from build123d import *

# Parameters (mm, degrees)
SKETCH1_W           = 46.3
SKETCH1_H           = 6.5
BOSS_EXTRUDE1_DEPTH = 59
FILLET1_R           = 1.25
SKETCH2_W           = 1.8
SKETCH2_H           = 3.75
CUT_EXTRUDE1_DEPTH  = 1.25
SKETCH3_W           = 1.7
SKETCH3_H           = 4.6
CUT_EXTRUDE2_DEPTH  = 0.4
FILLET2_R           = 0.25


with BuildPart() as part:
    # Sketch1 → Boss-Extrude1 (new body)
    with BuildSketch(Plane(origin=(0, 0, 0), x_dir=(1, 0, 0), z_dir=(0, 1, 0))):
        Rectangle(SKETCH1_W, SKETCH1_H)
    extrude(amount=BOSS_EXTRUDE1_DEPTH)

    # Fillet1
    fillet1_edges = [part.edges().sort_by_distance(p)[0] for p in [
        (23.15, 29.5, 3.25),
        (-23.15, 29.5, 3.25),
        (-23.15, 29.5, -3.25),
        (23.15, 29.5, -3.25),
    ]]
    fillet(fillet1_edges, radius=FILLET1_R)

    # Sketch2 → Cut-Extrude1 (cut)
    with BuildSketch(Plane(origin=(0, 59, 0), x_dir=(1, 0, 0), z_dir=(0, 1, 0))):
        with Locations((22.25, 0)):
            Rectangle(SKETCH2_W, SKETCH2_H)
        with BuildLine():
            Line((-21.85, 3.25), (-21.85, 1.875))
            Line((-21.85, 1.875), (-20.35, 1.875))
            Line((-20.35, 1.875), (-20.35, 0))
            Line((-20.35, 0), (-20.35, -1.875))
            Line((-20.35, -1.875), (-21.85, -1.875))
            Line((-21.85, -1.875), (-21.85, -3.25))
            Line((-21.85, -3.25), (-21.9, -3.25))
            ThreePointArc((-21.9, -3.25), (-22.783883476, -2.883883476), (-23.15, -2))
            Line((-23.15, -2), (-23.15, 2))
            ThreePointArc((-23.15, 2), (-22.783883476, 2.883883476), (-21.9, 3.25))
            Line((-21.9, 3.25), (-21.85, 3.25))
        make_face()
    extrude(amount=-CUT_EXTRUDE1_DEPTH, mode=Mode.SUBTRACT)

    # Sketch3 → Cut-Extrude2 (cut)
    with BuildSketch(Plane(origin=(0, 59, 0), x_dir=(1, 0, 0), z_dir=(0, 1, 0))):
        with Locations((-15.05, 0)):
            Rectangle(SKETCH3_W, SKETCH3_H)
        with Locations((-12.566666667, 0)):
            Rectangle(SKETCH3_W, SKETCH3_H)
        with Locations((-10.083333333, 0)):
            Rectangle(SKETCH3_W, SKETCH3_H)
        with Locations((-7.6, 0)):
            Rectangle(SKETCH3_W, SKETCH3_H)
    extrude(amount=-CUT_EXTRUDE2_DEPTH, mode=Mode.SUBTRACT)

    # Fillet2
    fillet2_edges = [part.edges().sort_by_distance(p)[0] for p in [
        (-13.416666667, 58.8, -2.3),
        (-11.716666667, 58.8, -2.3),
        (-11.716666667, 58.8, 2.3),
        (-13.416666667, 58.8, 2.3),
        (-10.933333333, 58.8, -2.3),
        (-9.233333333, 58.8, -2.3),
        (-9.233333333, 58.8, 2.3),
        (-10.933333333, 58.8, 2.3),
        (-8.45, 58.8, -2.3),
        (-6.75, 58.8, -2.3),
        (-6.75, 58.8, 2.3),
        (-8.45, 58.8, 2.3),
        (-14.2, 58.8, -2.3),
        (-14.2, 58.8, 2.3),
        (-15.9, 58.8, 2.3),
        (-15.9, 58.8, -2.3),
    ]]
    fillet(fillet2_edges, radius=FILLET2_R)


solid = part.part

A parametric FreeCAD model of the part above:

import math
import FreeCAD as App
import Part
import Sketcher
Q = App.Units.Quantity


def edges_at(feature, points):
    """Names of the edges that pass closest to the given points."""
    edges = feature.Shape.Edges
    near = lambda p: min(range(len(edges)), key=lambda i: edges[i].distToShape(Part.Vertex(*p))[0])
    return sorted({f"Edge{near(p) + 1}" for p in points})

doc = App.newDocument("Part")
params = doc.addObject("Spreadsheet::Sheet", "Params")
for row, (alias, value) in enumerate([
    ("sketch1_width", "46.3 mm"),
    ("sketch1_height", "6.5 mm"),
    ("pad1_length", "59 mm"),
    ("fillet_radius", "1.25 mm"),
    ("sketch2_height", "4 mm"),
    ("sketch2_radius", "1.25 mm"),
    ("sketch2_width", "1.8 mm"),
    ("sketch2_width2", "1.5 mm"),
    ("sketch2_width3", "0.05 mm"),
    ("pocket1_length", "1.25 mm"),
    ("sketch3_width", "1.7 mm"),
    ("sketch3_height", "4.6 mm"),
    ("pocket2_length", "0.4 mm"),
    ("fillet2_radius", "0.25 mm"),
], start=1):
    params.set(f"A{row}", alias)
    params.set(f"B{row}", "=" + value)
    params.setAlias(f"B{row}", alias)

body = doc.addObject("PartDesign::Body", "Body")

sketch1 = body.newObject("Sketcher::SketchObject", "Sketch")
sketch1.AttachmentSupport = (doc.getObject("XZ_Plane"), [""])
sketch1.MapMode = "FlatFace"
sketch1.addGeometry(Part.LineSegment(App.Vector(-23, -3, 0), App.Vector(-23, 3, 0)), False)
sketch1.addGeometry(Part.LineSegment(App.Vector(-23, 3, 0), App.Vector(23, 3, 0)), False)
sketch1.addGeometry(Part.LineSegment(App.Vector(23, 3, 0), App.Vector(23, -3, 0)), False)
sketch1.addGeometry(Part.LineSegment(App.Vector(23, -3, 0), App.Vector(-23, -3, 0)), False)
sketch1.addConstraint(Sketcher.Constraint("Coincident", 0, 2, 1, 1))
sketch1.addConstraint(Sketcher.Constraint("Coincident", 1, 2, 2, 1))
sketch1.addConstraint(Sketcher.Constraint("Coincident", 2, 2, 3, 1))
sketch1.addConstraint(Sketcher.Constraint("Coincident", 3, 2, 0, 1))
sketch1.addConstraint(Sketcher.Constraint("Vertical", 0))
sketch1.addConstraint(Sketcher.Constraint("Horizontal", 1))
sketch1.addConstraint(Sketcher.Constraint("Vertical", 2))
sketch1.addConstraint(Sketcher.Constraint("Horizontal", 3))
sketch1.addConstraint(Sketcher.Constraint("Symmetric", 0, 2, 2, 2, -1, 1))
sketch1.addConstraint(Sketcher.Constraint("DistanceX", 1, 1, 1, 2, Q("46.3 mm")))
sketch1.addConstraint(Sketcher.Constraint("DistanceY", 0, 1, 0, 2, Q("6.5 mm")))
sketch1.setExpression("Constraints[9]", "Params.sketch1_width")
sketch1.setExpression("Constraints[10]", "Params.sketch1_height")
pad1 = body.newObject("PartDesign::Pad", "Pad")
pad1.Profile = sketch1
pad1.setExpression("Length", "Params.pad1_length")
pad1.Reversed = True
doc.recompute()

fillet = body.newObject("PartDesign::Fillet", "Fillet")
fillet.Base = (pad1, edges_at(pad1, [
    (23.15, 29.5, 3.25),
    (-23.15, 29.5, 3.25),
    (-23.15, 29.5, -3.25),
    (23.15, 29.5, -3.25),
]))
fillet.setExpression("Radius", "Params.fillet_radius")

sketch2 = body.newObject("Sketcher::SketchObject", "Sketch001")
sketch2.AttachmentSupport = (doc.getObject("XZ_Plane"), [""])
sketch2.MapMode = "FlatFace"
sketch2.AttachmentOffset = App.Placement(App.Vector(0, 0, -59), App.Rotation())
sketch2.addGeometry(Part.LineSegment(App.Vector(21.35, -1.875, 0), App.Vector(21.35, 1.875, 0)), False)
sketch2.addGeometry(Part.LineSegment(App.Vector(21.35, 1.875, 0), App.Vector(23.15, 1.875, 0)), False)
sketch2.addGeometry(Part.LineSegment(App.Vector(23.15, 1.875, 0), App.Vector(23.15, -1.875, 0)), False)
sketch2.addGeometry(Part.LineSegment(App.Vector(23.15, -1.875, 0), App.Vector(21.35, -1.875, 0)), False)
sketch2.addGeometry(Part.LineSegment(App.Vector(-21.85, -1.875, 0), App.Vector(-21.85, -3.25, 0)), False)
sketch2.addGeometry(Part.LineSegment(App.Vector(-21.85, -3.25, 0), App.Vector(-21.9, -3.25, 0)), False)
sketch2.addGeometry(Part.ArcOfCircle(Part.Circle(App.Vector(-21.9, -2, 0), App.Vector(0, 0, 1), 1.25), math.radians(-180), math.radians(-90)), False)
sketch2.addGeometry(Part.LineSegment(App.Vector(-23.15, -2, 0), App.Vector(-23.15, 2, 0)), False)
sketch2.addGeometry(Part.ArcOfCircle(Part.Circle(App.Vector(-21.9, 2, 0), App.Vector(0, 0, 1), 1.25), math.radians(90), math.radians(180)), False)
sketch2.addGeometry(Part.LineSegment(App.Vector(-21.9, 3.25, 0), App.Vector(-21.85, 3.25, 0)), False)
sketch2.addGeometry(Part.LineSegment(App.Vector(-21.85, 3.25, 0), App.Vector(-21.85, 1.875, 0)), False)
sketch2.addGeometry(Part.LineSegment(App.Vector(-21.85, 1.875, 0), App.Vector(-20.35, 1.875, 0)), False)
sketch2.addGeometry(Part.LineSegment(App.Vector(-20.35, 1.875, 0), App.Vector(-20.35, -1.875, 0)), False)
sketch2.addGeometry(Part.LineSegment(App.Vector(-20.35, -1.875, 0), App.Vector(-21.85, -1.875, 0)), False)
sketch2.addConstraint(Sketcher.Constraint("Coincident", 0, 2, 1, 1))
sketch2.addConstraint(Sketcher.Constraint("Coincident", 1, 2, 2, 1))
sketch2.addConstraint(Sketcher.Constraint("Coincident", 2, 2, 3, 1))
sketch2.addConstraint(Sketcher.Constraint("Coincident", 3, 2, 0, 1))
sketch2.addConstraint(Sketcher.Constraint("Coincident", 4, 2, 5, 1))
sketch2.addConstraint(Sketcher.Constraint("Tangent", 5, 2, 6, 2))
sketch2.addConstraint(Sketcher.Constraint("Tangent", 6, 1, 7, 1))
sketch2.addConstraint(Sketcher.Constraint("Tangent", 7, 2, 8, 2))
sketch2.addConstraint(Sketcher.Constraint("Tangent", 8, 1, 9, 1))
sketch2.addConstraint(Sketcher.Constraint("Coincident", 9, 2, 10, 1))
sketch2.addConstraint(Sketcher.Constraint("Coincident", 10, 2, 11, 1))
sketch2.addConstraint(Sketcher.Constraint("Coincident", 11, 2, 12, 1))
sketch2.addConstraint(Sketcher.Constraint("Coincident", 12, 2, 13, 1))
sketch2.addConstraint(Sketcher.Constraint("Coincident", 13, 2, 4, 1))
sketch2.addConstraint(Sketcher.Constraint("Vertical", 0))
sketch2.addConstraint(Sketcher.Constraint("Horizontal", 1))
sketch2.addConstraint(Sketcher.Constraint("Vertical", 2))
sketch2.addConstraint(Sketcher.Constraint("Horizontal", 3))
sketch2.addConstraint(Sketcher.Constraint("Vertical", 4))
sketch2.addConstraint(Sketcher.Constraint("Horizontal", 5))
sketch2.addConstraint(Sketcher.Constraint("Vertical", 7))
sketch2.addConstraint(Sketcher.Constraint("Horizontal", 9))
sketch2.addConstraint(Sketcher.Constraint("Vertical", 10))
sketch2.addConstraint(Sketcher.Constraint("Horizontal", 11))
sketch2.addConstraint(Sketcher.Constraint("Vertical", 12))
sketch2.addConstraint(Sketcher.Constraint("Horizontal", 13))
sketch2.addConstraint(Sketcher.Constraint("Equal", 6, 8))
sketch2.addConstraint(Sketcher.Constraint("Symmetric", 4, 2, 9, 2, -1))
sketch2.addConstraint(Sketcher.Constraint("Horizontal", 1, 2, 10, 2))
sketch2.addConstraint(Sketcher.Constraint("Horizontal", 3, 2, 12, 2))
sketch2.addConstraint(Sketcher.Constraint("Equal", 4, 10))
sketch2.addConstraint(Sketcher.Constraint("DistanceY", 7, 1, 7, 2, Q("4 mm")))
sketch2.addConstraint(Sketcher.Constraint("Radius", 6, Q("1.25 mm")))
sketch2.addConstraint(Sketcher.Constraint("DistanceX", 1, 1, 1, 2, Q("1.8 mm")))
sketch2.addConstraint(Sketcher.Constraint("DistanceX", 11, 1, 11, 2, Q("1.5 mm")))
sketch2.addConstraint(Sketcher.Constraint("DistanceX", 4, 2, 2, 2, Q("45 mm")))
sketch2.addConstraint(Sketcher.Constraint("DistanceX", 5, 2, 5, 1, Q("0.05 mm")))
sketch2.addConstraint(Sketcher.Constraint("DistanceY", 0, 1, 0, 2, Q("3.75 mm")))
sketch2.addConstraint(Sketcher.Constraint("DistanceX", 6, 3, -1, 1, Q("21.9 mm")))
sketch2.setExpression("Constraints[31]", "Params.sketch2_height")
sketch2.setExpression("Constraints[32]", "Params.sketch2_radius")
sketch2.setExpression("Constraints[33]", "Params.sketch2_width")
sketch2.setExpression("Constraints[34]", "Params.sketch2_width2")
sketch2.setExpression("Constraints[36]", "Params.sketch2_width3")
pocket1 = body.newObject("PartDesign::Pocket", "Pocket")
pocket1.Profile = sketch2
pocket1.setExpression("Length", "Params.pocket1_length")
pocket1.Reversed = True

sketch3 = body.newObject("Sketcher::SketchObject", "Sketch002")
sketch3.AttachmentSupport = (doc.getObject("XZ_Plane"), [""])
sketch3.MapMode = "FlatFace"
sketch3.AttachmentOffset = App.Placement(App.Vector(0, 0, -59), App.Rotation())
sketch3.addGeometry(Part.LineSegment(App.Vector(-15.9, -2.3, 0), App.Vector(-15.9, 2.3, 0)), False)
sketch3.addGeometry(Part.LineSegment(App.Vector(-15.9, 2.3, 0), App.Vector(-14.2, 2.3, 0)), False)
sketch3.addGeometry(Part.LineSegment(App.Vector(-14.2, 2.3, 0), App.Vector(-14.2, -2.3, 0)), False)
sketch3.addGeometry(Part.LineSegment(App.Vector(-14.2, -2.3, 0), App.Vector(-15.9, -2.3, 0)), False)
sketch3.addGeometry(Part.LineSegment(App.Vector(-13.4, -2.3, 0), App.Vector(-13.4, 2.3, 0)), False)
sketch3.addGeometry(Part.LineSegment(App.Vector(-13.4, 2.3, 0), App.Vector(-11.7, 2.3, 0)), False)
sketch3.addGeometry(Part.LineSegment(App.Vector(-11.7, 2.3, 0), App.Vector(-11.7, -2.3, 0)), False)
sketch3.addGeometry(Part.LineSegment(App.Vector(-11.7, -2.3, 0), App.Vector(-13.4, -2.3, 0)), False)
sketch3.addGeometry(Part.LineSegment(App.Vector(-10.9, -2.3, 0), App.Vector(-10.9, 2.3, 0)), False)
sketch3.addGeometry(Part.LineSegment(App.Vector(-10.9, 2.3, 0), App.Vector(-9.2, 2.3, 0)), False)
sketch3.addGeometry(Part.LineSegment(App.Vector(-9.2, 2.3, 0), App.Vector(-9.2, -2.3, 0)), False)
sketch3.addGeometry(Part.LineSegment(App.Vector(-9.2, -2.3, 0), App.Vector(-10.9, -2.3, 0)), False)
sketch3.addGeometry(Part.LineSegment(App.Vector(-8.4, -2.3, 0), App.Vector(-8.4, 2.3, 0)), False)
sketch3.addGeometry(Part.LineSegment(App.Vector(-8.4, 2.3, 0), App.Vector(-6.8, 2.3, 0)), False)
sketch3.addGeometry(Part.LineSegment(App.Vector(-6.8, 2.3, 0), App.Vector(-6.8, -2.3, 0)), False)
sketch3.addGeometry(Part.LineSegment(App.Vector(-6.8, -2.3, 0), App.Vector(-8.4, -2.3, 0)), False)
sketch3.addConstraint(Sketcher.Constraint("Coincident", 0, 2, 1, 1))
sketch3.addConstraint(Sketcher.Constraint("Coincident", 1, 2, 2, 1))
sketch3.addConstraint(Sketcher.Constraint("Coincident", 2, 2, 3, 1))
sketch3.addConstraint(Sketcher.Constraint("Coincident", 3, 2, 0, 1))
sketch3.addConstraint(Sketcher.Constraint("Coincident", 4, 2, 5, 1))
sketch3.addConstraint(Sketcher.Constraint("Coincident", 5, 2, 6, 1))
sketch3.addConstraint(Sketcher.Constraint("Coincident", 6, 2, 7, 1))
sketch3.addConstraint(Sketcher.Constraint("Coincident", 7, 2, 4, 1))
sketch3.addConstraint(Sketcher.Constraint("Coincident", 8, 2, 9, 1))
sketch3.addConstraint(Sketcher.Constraint("Coincident", 9, 2, 10, 1))
sketch3.addConstraint(Sketcher.Constraint("Coincident", 10, 2, 11, 1))
sketch3.addConstraint(Sketcher.Constraint("Coincident", 11, 2, 8, 1))
sketch3.addConstraint(Sketcher.Constraint("Coincident", 12, 2, 13, 1))
sketch3.addConstraint(Sketcher.Constraint("Coincident", 13, 2, 14, 1))
sketch3.addConstraint(Sketcher.Constraint("Coincident", 14, 2, 15, 1))
sketch3.addConstraint(Sketcher.Constraint("Coincident", 15, 2, 12, 1))
sketch3.addConstraint(Sketcher.Constraint("Vertical", 0))
sketch3.addConstraint(Sketcher.Constraint("Horizontal", 1))
sketch3.addConstraint(Sketcher.Constraint("Vertical", 2))
sketch3.addConstraint(Sketcher.Constraint("Horizontal", 3))
sketch3.addConstraint(Sketcher.Constraint("Vertical", 4))
sketch3.addConstraint(Sketcher.Constraint("Horizontal", 5))
sketch3.addConstraint(Sketcher.Constraint("Vertical", 6))
sketch3.addConstraint(Sketcher.Constraint("Horizontal", 7))
sketch3.addConstraint(Sketcher.Constraint("Vertical", 8))
sketch3.addConstraint(Sketcher.Constraint("Horizontal", 9))
sketch3.addConstraint(Sketcher.Constraint("Vertical", 10))
sketch3.addConstraint(Sketcher.Constraint("Horizontal", 11))
sketch3.addConstraint(Sketcher.Constraint("Vertical", 12))
sketch3.addConstraint(Sketcher.Constraint("Horizontal", 13))
sketch3.addConstraint(Sketcher.Constraint("Vertical", 14))
sketch3.addConstraint(Sketcher.Constraint("Horizontal", 15))
sketch3.addConstraint(Sketcher.Constraint("Horizontal", 1, 2, 4, 2))
sketch3.addConstraint(Sketcher.Constraint("Horizontal", 3, 2, 6, 2))
sketch3.addConstraint(Sketcher.Constraint("Horizontal", 5, 2, 8, 2))
sketch3.addConstraint(Sketcher.Constraint("Horizontal", 7, 2, 10, 2))
sketch3.addConstraint(Sketcher.Constraint("Horizontal", 9, 2, 12, 2))
sketch3.addConstraint(Sketcher.Constraint("Horizontal", 11, 2, 14, 2))
sketch3.addConstraint(Sketcher.Constraint("Equal", 3, 5))
sketch3.addConstraint(Sketcher.Constraint("Equal", 7, 9))
sketch3.addConstraint(Sketcher.Constraint("Equal", 11, 13))
sketch3.addConstraint(Sketcher.Constraint("DistanceX", 1, 1, 1, 2, Q("1.7 mm")))
sketch3.addConstraint(Sketcher.Constraint("DistanceY", 0, 1, 0, 2, Q("4.6 mm")))
sketch3.addConstraint(Sketcher.Constraint("DistanceX", 0, 2, -1, 1, Q("15.9 mm")))
sketch3.addConstraint(Sketcher.Constraint("DistanceY", -1, 1, 0, 2, Q("2.3 mm")))
sketch3.addConstraint(Sketcher.Constraint("DistanceX", 12, 2, -1, 1, Q("8.45 mm")))
sketch3.addConstraint(Sketcher.Constraint("DistanceX", 4, 2, -1, 1, Q("13.416667 mm")))
sketch3.addConstraint(Sketcher.Constraint("DistanceX", 8, 2, -1, 1, Q("10.933333 mm")))
sketch3.setExpression("Constraints[41]", "Params.sketch3_width")
sketch3.setExpression("Constraints[42]", "Params.sketch3_height")
pocket2 = body.newObject("PartDesign::Pocket", "Pocket001")
pocket2.Profile = sketch3
pocket2.setExpression("Length", "Params.pocket2_length")
pocket2.Reversed = True
doc.recompute()

fillet2 = body.newObject("PartDesign::Fillet", "Fillet001")
fillet2.Base = (pocket2, edges_at(pocket2, [
    (-13.417, 58.8, -2.3),
    (-11.717, 58.8, -2.3),
    (-11.717, 58.8, 2.3),
    (-13.417, 58.8, 2.3),
    (-10.933, 58.8, -2.3),
    (-9.233, 58.8, -2.3),
    (-9.233, 58.8, 2.3),
    (-10.933, 58.8, 2.3),
    (-8.45, 58.8, -2.3),
    (-6.75, 58.8, -2.3),
    (-6.75, 58.8, 2.3),
    (-8.45, 58.8, 2.3),
    (-14.2, 58.8, -2.3),
    (-14.2, 58.8, 2.3),
    (-15.9, 58.8, 2.3),
    (-15.9, 58.8, -2.3),
]))
fillet2.setExpression("Radius", "Params.fillet2_radius")

doc.recompute()
